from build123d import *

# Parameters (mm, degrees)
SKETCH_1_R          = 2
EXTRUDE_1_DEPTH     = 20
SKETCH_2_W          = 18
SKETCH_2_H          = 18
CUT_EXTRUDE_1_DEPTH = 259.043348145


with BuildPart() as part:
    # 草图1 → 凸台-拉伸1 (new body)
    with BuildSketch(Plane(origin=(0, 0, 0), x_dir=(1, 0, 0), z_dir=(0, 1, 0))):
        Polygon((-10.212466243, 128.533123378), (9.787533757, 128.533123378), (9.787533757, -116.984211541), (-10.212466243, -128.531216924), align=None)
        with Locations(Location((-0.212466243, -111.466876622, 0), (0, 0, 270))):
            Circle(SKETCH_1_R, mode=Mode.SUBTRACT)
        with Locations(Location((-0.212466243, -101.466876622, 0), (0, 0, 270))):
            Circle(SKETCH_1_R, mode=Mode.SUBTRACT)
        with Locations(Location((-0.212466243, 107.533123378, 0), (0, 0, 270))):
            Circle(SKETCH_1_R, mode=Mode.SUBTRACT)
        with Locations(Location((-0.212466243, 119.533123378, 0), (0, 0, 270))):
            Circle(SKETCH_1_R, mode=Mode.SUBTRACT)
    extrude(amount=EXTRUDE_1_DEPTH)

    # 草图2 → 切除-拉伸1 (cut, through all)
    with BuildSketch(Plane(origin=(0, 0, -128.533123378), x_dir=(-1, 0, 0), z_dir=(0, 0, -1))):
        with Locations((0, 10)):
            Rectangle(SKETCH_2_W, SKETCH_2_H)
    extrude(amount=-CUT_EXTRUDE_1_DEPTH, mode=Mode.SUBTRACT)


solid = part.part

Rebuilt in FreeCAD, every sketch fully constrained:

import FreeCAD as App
import Part
import Sketcher
Q = App.Units.Quantity

doc = App.newDocument("Part")
body = doc.addObject("PartDesign::Body", "Body")

# Sketch on XZ plane
sketch1 = body.newObject("Sketcher::SketchObject", "Sketch")
sketch1.AttachmentSupport = (doc.getObject("XZ_Plane"), [""])
sketch1.MapMode = "FlatFace"
sketch1.addGeometry([
    Part.LineSegment(App.Vector(9.787534, -128.533123, 0), App.Vector(-10.212466, -128.533123, 0)),  # 0
    Part.LineSegment(App.Vector(-10.212466, -128.533123, 0), App.Vector(-10.212466, 128.531217, 0)),  # 1
    Part.LineSegment(App.Vector(-10.212466, 128.531217, 0), App.Vector(9.787534, 116.984212, 0)),  # 2
    Part.LineSegment(App.Vector(9.787534, 116.984212, 0), App.Vector(9.787534, -128.533123, 0)),  # 3
    Part.Circle(App.Vector(-0.212466, 111.466877, 0), App.Vector(0, 0, 1), 2),  # 4
    Part.Circle(App.Vector(-0.212466, 101.466877, 0), App.Vector(0, 0, 1), 2),  # 5
    Part.Circle(App.Vector(-0.212466, -107.533123, 0), App.Vector(0, 0, 1), 2),  # 6
    Part.Circle(App.Vector(-0.212466, -119.533123, 0), App.Vector(0, 0, 1), 2),  # 7
], False)
sketch1.addConstraint([
    Sketcher.Constraint("Coincident", 0, 2, 1, 1),
    Sketcher.Constraint("Coincident", 1, 2, 2, 1),
    Sketcher.Constraint("Coincident", 2, 2, 3, 1),
    Sketcher.Constraint("Coincident", 3, 2, 0, 1),
    Sketcher.Constraint("Horizontal", 0),
    Sketcher.Constraint("Vertical", 1),
    Sketcher.Constraint("Vertical", 3),
    Sketcher.Constraint("Equal", 4, 5),
    Sketcher.Constraint("Equal", 5, 6),
    Sketcher.Constraint("Equal", 6, 7),
    Sketcher.Constraint("Vertical", 4, 3, 5, 3),
    Sketcher.Constraint("Vertical", 5, 3, 6, 3),
    Sketcher.Constraint("Vertical", 6, 3, 7, 3),
    Sketcher.Constraint("Diameter", 4, 4.0),
    Sketcher.Constraint("DistanceX", 0, 2, 0, 1, 20.0),
    Sketcher.Constraint("Angle", 2, Q("-30 deg")),
    Sketcher.Constraint("DistanceY", 5, 3, 4, 3, 10.0),
    Sketcher.Constraint("DistanceY", 6, 3, 5, 3, 209.0),
    Sketcher.Constraint("DistanceY", 7, 3, 6, 3, 12.0),
    Sketcher.Constraint("DistanceX", 0, 2, 7, 3, 10.0),
    Sketcher.Constraint("DistanceY", 0, 2, 7, 3, 9.0),
    Sketcher.Constraint("DistanceY", 1, 1, 1, 2, 257.06434),
    Sketcher.Constraint("DistanceY", -1, 1, 2, 2, 116.984212),
    Sketcher.Constraint("DistanceX", 4, 3, -1, 1, 0.212466),
])
pad1 = body.newObject("PartDesign::Pad", "Pad")
pad1.Profile = sketch1
pad1.Length = 20
pad1.Reversed = True

# Sketch on XY plane
sketch2 = body.newObject("Sketcher::SketchObject", "Sketch001")
sketch2.AttachmentSupport = (doc.getObject("XY_Plane"), [""])
sketch2.MapMode = "FlatFace"
sketch2.AttachmentOffset = App.Placement(App.Vector(0, 0, -128.533123), App.Rotation())
sketch2.addGeometry([
    Part.LineSegment(App.Vector(9, 19, 0), App.Vector(9, 1, 0)),
    Part.LineSegment(App.Vector(9, 1, 0), App.Vector(-9, 1, 0)),
    Part.LineSegment(App.Vector(-9, 1, 0), App.Vector(-9, 19, 0)),
    Part.LineSegment(App.Vector(-9, 19, 0), App.Vector(9, 19, 0)),
], False)
sketch2.addConstraint([
    Sketcher.Constraint("Coincident", 0, 2, 1, 1),
    Sketcher.Constraint("Coincident", 1, 2, 2, 1),
    Sketcher.Constraint("Coincident", 2, 2, 3, 1),
    Sketcher.Constraint("Coincident", 3, 2, 0, 1),
    Sketcher.Constraint("Vertical", 0),
    Sketcher.Constraint("Horizontal", 1),
    Sketcher.Constraint("Vertical", 2),
    Sketcher.Constraint("Horizontal", 3),
    Sketcher.Constraint("Equal", 3, 0),
    Sketcher.Constraint("DistanceX", 1, 2, 1, 1, 18.0),
    Sketcher.Constraint("DistanceX", -1, 1, 0, 2, 9.0),
    Sketcher.Constraint("DistanceY", -1, 1, 0, 2, 1.0),
])
pocket1 = body.newObject("PartDesign::Pocket", "Pocket")
pocket1.Profile = sketch2
pocket1.Type = "ThroughAll"
pocket1.Reversed = True

doc.recompute()
